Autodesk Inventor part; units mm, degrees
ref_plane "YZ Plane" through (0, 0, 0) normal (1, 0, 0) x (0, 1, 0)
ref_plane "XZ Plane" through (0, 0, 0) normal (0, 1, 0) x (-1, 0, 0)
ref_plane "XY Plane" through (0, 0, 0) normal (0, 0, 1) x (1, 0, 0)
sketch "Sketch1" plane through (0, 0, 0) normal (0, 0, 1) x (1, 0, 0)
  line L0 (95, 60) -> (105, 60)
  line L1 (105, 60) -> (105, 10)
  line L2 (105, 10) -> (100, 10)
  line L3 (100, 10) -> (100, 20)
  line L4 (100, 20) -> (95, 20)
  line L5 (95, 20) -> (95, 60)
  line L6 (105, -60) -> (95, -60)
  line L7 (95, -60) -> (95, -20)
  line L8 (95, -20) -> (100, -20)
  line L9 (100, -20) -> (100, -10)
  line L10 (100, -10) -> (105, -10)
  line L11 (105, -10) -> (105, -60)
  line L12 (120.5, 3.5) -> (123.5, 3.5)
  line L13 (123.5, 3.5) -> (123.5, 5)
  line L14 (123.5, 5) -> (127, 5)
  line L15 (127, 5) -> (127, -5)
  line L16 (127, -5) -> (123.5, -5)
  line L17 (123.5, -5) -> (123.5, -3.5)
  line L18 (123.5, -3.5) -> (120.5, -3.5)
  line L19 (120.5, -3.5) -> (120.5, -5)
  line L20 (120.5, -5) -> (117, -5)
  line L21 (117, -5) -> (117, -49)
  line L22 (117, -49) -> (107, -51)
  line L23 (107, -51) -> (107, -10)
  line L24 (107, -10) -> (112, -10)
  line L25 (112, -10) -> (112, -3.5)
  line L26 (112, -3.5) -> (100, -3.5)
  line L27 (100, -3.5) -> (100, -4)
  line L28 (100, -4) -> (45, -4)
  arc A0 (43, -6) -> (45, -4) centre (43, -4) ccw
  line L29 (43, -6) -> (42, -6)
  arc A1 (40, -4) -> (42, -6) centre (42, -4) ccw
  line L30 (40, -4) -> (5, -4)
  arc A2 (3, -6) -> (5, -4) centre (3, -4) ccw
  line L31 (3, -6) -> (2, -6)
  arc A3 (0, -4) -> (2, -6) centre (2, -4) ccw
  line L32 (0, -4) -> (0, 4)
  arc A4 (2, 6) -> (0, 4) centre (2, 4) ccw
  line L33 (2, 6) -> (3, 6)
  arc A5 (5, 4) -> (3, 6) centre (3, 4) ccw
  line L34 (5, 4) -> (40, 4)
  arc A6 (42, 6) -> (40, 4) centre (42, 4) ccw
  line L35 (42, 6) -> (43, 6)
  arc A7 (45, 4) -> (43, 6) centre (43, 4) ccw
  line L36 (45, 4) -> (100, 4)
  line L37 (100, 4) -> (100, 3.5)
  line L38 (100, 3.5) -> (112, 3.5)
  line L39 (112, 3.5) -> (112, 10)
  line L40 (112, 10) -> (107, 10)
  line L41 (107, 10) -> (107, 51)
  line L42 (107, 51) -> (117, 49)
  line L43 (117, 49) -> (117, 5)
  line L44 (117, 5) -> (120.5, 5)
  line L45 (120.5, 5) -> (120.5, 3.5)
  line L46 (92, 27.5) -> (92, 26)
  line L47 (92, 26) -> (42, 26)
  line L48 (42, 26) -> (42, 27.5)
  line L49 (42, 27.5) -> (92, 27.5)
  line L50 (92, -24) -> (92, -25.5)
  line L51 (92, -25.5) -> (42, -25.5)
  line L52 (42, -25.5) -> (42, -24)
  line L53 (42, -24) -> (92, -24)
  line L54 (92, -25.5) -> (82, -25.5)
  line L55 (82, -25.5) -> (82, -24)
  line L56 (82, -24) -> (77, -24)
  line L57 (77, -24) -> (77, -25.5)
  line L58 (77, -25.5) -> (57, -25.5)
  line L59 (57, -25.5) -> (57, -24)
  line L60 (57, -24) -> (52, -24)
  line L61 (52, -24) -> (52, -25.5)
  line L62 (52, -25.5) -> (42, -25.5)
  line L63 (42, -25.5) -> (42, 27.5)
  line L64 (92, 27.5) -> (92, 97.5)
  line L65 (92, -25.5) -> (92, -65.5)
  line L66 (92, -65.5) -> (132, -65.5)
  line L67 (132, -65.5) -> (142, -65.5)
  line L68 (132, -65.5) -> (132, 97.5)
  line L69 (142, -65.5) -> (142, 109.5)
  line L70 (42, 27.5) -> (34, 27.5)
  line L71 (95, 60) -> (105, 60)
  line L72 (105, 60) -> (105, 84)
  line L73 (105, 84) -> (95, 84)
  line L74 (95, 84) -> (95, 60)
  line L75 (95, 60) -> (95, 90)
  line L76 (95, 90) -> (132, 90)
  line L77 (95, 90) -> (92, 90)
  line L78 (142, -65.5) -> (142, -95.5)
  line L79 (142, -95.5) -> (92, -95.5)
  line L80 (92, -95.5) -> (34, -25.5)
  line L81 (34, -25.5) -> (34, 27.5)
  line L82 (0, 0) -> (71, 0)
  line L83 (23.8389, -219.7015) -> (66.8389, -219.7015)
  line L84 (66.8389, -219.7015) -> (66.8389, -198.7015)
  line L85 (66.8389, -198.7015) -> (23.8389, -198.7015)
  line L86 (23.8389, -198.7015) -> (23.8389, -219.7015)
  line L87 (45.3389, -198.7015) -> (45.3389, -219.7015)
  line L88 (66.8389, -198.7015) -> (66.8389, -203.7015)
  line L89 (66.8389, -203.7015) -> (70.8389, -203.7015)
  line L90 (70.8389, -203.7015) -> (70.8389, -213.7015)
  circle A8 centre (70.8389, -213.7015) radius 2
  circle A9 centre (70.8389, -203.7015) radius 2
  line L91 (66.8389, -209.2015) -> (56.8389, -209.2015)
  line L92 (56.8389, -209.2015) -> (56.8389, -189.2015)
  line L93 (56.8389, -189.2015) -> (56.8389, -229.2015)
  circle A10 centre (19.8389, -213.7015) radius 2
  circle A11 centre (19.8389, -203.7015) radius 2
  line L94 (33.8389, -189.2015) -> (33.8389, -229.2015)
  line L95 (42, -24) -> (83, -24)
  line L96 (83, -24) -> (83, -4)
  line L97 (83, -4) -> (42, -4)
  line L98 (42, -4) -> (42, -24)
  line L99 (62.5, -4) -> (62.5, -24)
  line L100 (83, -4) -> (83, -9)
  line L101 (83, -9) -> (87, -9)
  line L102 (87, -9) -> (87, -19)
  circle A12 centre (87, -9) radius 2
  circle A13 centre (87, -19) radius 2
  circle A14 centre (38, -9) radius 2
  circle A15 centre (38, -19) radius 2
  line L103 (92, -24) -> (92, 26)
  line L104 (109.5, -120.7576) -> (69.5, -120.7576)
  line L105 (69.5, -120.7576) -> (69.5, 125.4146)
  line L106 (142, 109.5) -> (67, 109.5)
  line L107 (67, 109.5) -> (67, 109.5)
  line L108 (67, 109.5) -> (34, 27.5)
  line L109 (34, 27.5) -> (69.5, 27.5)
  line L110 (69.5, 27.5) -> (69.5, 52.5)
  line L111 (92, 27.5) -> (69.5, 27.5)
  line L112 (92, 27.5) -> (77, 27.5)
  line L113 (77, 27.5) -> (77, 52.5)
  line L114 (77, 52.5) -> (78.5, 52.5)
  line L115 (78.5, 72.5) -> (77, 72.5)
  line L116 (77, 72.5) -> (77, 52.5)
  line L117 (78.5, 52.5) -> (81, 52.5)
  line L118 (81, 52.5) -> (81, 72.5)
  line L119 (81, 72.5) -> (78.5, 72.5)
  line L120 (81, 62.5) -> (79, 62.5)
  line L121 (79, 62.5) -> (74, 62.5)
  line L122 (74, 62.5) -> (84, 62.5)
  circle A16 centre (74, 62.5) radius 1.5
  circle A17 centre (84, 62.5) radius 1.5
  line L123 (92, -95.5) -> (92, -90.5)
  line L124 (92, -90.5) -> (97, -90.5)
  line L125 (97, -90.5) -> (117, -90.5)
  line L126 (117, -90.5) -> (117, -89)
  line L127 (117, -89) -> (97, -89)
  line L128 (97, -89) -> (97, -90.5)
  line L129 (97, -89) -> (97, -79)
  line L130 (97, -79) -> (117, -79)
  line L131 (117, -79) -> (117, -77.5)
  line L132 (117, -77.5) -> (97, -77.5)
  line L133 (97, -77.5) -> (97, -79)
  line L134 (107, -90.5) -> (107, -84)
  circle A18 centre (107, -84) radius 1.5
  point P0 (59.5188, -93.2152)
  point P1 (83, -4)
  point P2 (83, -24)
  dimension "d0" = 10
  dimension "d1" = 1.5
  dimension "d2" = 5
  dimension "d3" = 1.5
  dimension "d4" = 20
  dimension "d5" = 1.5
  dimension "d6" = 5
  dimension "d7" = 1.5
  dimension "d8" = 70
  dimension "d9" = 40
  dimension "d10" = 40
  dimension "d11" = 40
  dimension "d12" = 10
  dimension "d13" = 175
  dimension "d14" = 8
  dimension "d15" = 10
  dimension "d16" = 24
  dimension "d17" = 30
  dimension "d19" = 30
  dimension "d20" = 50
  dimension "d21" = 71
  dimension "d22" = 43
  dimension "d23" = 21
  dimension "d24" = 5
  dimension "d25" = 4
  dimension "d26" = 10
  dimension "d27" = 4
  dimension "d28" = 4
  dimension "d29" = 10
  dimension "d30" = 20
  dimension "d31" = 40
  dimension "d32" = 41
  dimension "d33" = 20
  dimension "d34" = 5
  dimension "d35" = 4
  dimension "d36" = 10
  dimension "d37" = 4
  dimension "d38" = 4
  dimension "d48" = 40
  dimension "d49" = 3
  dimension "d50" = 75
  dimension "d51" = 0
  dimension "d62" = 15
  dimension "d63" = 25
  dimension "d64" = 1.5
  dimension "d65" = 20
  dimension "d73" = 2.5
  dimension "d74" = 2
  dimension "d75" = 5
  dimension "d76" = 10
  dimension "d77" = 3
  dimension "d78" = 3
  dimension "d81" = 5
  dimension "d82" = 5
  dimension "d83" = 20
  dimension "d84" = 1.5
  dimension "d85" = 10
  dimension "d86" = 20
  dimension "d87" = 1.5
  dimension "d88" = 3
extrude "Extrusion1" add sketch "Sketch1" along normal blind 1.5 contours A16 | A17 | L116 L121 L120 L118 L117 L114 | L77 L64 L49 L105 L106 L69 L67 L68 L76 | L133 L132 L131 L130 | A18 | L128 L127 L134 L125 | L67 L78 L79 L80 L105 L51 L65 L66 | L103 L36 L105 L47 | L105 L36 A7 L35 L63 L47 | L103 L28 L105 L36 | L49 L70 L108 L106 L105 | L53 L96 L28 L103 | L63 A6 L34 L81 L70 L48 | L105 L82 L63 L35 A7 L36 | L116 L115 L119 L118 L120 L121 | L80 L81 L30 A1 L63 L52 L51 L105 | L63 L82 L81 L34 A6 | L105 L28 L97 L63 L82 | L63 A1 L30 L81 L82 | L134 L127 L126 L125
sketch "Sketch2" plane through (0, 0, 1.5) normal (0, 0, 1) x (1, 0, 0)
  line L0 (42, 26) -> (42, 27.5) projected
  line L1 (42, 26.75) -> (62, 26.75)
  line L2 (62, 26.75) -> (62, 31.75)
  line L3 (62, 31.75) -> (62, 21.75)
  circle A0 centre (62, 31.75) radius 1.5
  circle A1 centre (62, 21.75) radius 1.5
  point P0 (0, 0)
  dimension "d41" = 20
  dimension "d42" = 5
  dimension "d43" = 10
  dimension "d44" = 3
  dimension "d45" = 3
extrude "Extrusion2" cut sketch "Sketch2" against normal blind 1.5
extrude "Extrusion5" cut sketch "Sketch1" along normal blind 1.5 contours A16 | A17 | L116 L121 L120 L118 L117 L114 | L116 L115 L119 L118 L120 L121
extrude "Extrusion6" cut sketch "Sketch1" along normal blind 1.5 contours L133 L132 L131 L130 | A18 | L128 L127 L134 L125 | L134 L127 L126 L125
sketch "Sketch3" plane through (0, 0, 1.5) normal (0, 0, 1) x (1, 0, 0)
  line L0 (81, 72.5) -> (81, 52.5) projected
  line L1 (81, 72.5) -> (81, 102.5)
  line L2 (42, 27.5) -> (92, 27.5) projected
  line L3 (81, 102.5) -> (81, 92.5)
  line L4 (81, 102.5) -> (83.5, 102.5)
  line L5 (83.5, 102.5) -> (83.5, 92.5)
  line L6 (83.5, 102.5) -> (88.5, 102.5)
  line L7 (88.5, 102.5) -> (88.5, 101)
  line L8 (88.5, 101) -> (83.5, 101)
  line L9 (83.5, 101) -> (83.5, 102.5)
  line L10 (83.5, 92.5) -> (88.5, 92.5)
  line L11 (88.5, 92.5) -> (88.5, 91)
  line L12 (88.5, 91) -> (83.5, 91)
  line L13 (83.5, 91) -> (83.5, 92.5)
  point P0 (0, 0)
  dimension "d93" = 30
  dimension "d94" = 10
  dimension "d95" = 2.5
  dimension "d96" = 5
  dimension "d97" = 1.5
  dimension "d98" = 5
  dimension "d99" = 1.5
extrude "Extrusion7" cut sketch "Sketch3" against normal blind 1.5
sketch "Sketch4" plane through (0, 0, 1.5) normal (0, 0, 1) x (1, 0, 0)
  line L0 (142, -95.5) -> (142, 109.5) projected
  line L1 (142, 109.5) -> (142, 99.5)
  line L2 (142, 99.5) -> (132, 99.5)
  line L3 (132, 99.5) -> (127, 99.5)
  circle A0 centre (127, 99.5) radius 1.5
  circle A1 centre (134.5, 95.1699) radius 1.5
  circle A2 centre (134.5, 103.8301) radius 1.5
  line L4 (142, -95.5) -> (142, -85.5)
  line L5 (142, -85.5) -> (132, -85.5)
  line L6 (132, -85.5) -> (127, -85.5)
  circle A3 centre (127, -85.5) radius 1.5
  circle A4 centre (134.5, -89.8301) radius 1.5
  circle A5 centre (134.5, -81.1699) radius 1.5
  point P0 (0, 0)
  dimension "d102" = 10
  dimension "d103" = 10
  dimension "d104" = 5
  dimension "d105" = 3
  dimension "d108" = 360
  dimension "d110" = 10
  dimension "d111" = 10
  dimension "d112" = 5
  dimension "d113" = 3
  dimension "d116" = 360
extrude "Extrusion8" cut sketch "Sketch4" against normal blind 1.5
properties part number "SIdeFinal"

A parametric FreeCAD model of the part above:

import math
import FreeCAD as App
import Part
import Sketcher
Q = App.Units.Quantity


def add_polygon(sketch, points):
    """Adds a closed chain of lines whose ends are joined by coincident constraints."""
    first, n = sketch.GeometryCount, len(points)
    for a, b in zip(points, points[1:] + points[:1]):
        sketch.addGeometry(Part.LineSegment(App.Vector(*a, 0), App.Vector(*b, 0)), False)
    for i in range(n):
        sketch.addConstraint(Sketcher.Constraint("Coincident", first + i, 2, first + (i + 1) % n, 1))

doc = App.newDocument("Part")
body = doc.addObject("PartDesign::Body", "Body")

# Sketch on XY plane
sketch1 = doc.addObject("Sketcher::SketchObject", "Sketch")
body.addObject(sketch1)
sketch1.AttachmentSupport = (doc.XY_Plane, [""])
sketch1.MapMode = "FlatFace"
add_polygon(sketch1, [(142, 109.5), (67, 109.5), (34, 27.5), (34, -25.5), (92, -95.5), (142, -95.5)])  # lines 0-5
add_polygon(sketch1, [(92, 90), (132, 90), (132, -65.5), (92, -65.5), (92, -25.5), (42, -25.5), (42, -4), (83, -4), (83, -9), (83, -24), (92, -24), (92, 26), (42, 26), (42, 27.5), (77, 27.5), (92, 27.5)])  # lines 6-21
sketch1.addGeometry(Part.Circle(App.Vector(38, -9, 0), App.Vector(0, 0, 1), 2), False)  # 22
sketch1.addGeometry(Part.Circle(App.Vector(38, -19, 0), App.Vector(0, 0, 1), 2), False)  # 23
sketch1.addGeometry(Part.Circle(App.Vector(87, -19, 0), App.Vector(0, 0, 1), 2), False)  # 24
sketch1.addGeometry(Part.ArcOfCircle(Part.Circle(App.Vector(87, -9, 0), App.Vector(0, 0, 1), 2), math.radians(180), math.radians(270)), False)  # 25
sketch1.addGeometry(Part.ArcOfCircle(Part.Circle(App.Vector(87, -9, 0), App.Vector(0, 0, 1), 2), math.radians(-90), math.radians(180)), False)  # 26
sketch1.addConstraint(Sketcher.Constraint("Tangent", 25, 1, 26, 2))
sketch1.addConstraint(Sketcher.Constraint("Coincident", 26, 1, 25, 2))
sketch1.addConstraint(Sketcher.Constraint("Horizontal", 0))
sketch1.addConstraint(Sketcher.Constraint("Vertical", 2))
sketch1.addConstraint(Sketcher.Constraint("Horizontal", 4))
sketch1.addConstraint(Sketcher.Constraint("Vertical", 5))
sketch1.addConstraint(Sketcher.Constraint("Horizontal", 6))
sketch1.addConstraint(Sketcher.Constraint("Vertical", 7))
sketch1.addConstraint(Sketcher.Constraint("Horizontal", 8))
sketch1.addConstraint(Sketcher.Constraint("Vertical", 9))
sketch1.addConstraint(Sketcher.Constraint("Horizontal", 10))
sketch1.addConstraint(Sketcher.Constraint("Vertical", 11))
sketch1.addConstraint(Sketcher.Constraint("Horizontal", 12))
sketch1.addConstraint(Sketcher.Constraint("Vertical", 13))
sketch1.addConstraint(Sketcher.Constraint("Vertical", 14))
sketch1.addConstraint(Sketcher.Constraint("Horizontal", 15))
sketch1.addConstraint(Sketcher.Constraint("Vertical", 16))
sketch1.addConstraint(Sketcher.Constraint("Horizontal", 17))
sketch1.addConstraint(Sketcher.Constraint("Vertical", 18))
sketch1.addConstraint(Sketcher.Constraint("Horizontal", 19))
sketch1.addConstraint(Sketcher.Constraint("Horizontal", 20))
sketch1.addConstraint(Sketcher.Constraint("Vertical", 21))
sketch1.addConstraint(Sketcher.Constraint("Equal", 22, 23))
sketch1.addConstraint(Sketcher.Constraint("Equal", 23, 24))
sketch1.addConstraint(Sketcher.Constraint("Equal", 24, 25))
sketch1.addConstraint(Sketcher.Constraint("Horizontal", 23, 3, 24, 3))
sketch1.addConstraint(Sketcher.Constraint("Horizontal", 22, 3, 25, 3))
sketch1.addConstraint(Sketcher.Constraint("Horizontal", 2, 2, 9, 2))
sketch1.addConstraint(Sketcher.Constraint("Horizontal", 26, 3, 13, 2))
sketch1.addConstraint(Sketcher.Constraint("Horizontal", 1, 2, 18, 2))
sketch1.addConstraint(Sketcher.Constraint("Horizontal", 13, 2, 25, 1))
sketch1.addConstraint(Sketcher.Constraint("Vertical", 22, 3, 23, 3))
sketch1.addConstraint(Sketcher.Constraint("Vertical", 24, 3, 25, 3))
sketch1.addConstraint(Sketcher.Constraint("Vertical", 3, 2, 8, 2))
sketch1.addConstraint(Sketcher.Constraint("Vertical", 9, 2, 15, 2))
sketch1.addConstraint(Sketcher.Constraint("Vertical", 11, 2, 17, 2))
sketch1.addConstraint(Sketcher.Constraint("Vertical", 16, 2, 20, 2))
sketch1.addConstraint(Sketcher.Constraint("Vertical", 25, 3, 26, 1))
sketch1.addConstraint(Sketcher.Constraint("Equal", 4, 10))
sketch1.addConstraint(Sketcher.Constraint("Equal", 8, 9))
sketch1.addConstraint(Sketcher.Constraint("Equal", 20, 14))
sketch1.addConstraint(Sketcher.Constraint("Equal", 17, 16))
sketch1.addConstraint(Sketcher.Constraint("Diameter", 22, Q("4 mm")))
sketch1.addConstraint(Sketcher.Constraint("DistanceX", 0, 2, 0, 1, Q("75 mm")))
sketch1.addConstraint(Sketcher.Constraint("DistanceX", 4, 1, 4, 2, Q("50 mm")))
sketch1.addConstraint(Sketcher.Constraint("DistanceX", 6, 1, 6, 2, Q("40 mm")))
sketch1.addConstraint(Sketcher.Constraint("DistanceX", 12, 1, 12, 2, Q("41 mm")))
sketch1.addConstraint(Sketcher.Constraint("DistanceX", 20, 1, 20, 2, Q("15 mm")))
sketch1.addConstraint(Sketcher.Constraint("DistanceY", 13, 2, 13, 1, Q("5 mm")))
sketch1.addConstraint(Sketcher.Constraint("DistanceY", 18, 1, 18, 2, Q("1.5 mm")))
sketch1.addConstraint(Sketcher.Constraint("DistanceY", 11, 2, -1, 1, Q("4 mm")))
sketch1.addConstraint(Sketcher.Constraint("DistanceY", 23, 3, 22, 3, Q("10 mm")))
sketch1.addConstraint(Sketcher.Constraint("DistanceX", 0, 2, 25, 3, Q("20 mm")))
sketch1.addConstraint(Sketcher.Constraint("DistanceX", 1, 2, 22, 3, Q("4 mm")))
sketch1.addConstraint(Sketcher.Constraint("DistanceY", 3, 2, 2, 2, Q("70 mm")))
sketch1.addConstraint(Sketcher.Constraint("DistanceX", 23, 3, 10, 2, Q("4 mm")))
sketch1.addConstraint(Sketcher.Constraint("DistanceY", 9, 2, 14, 2, Q("1.5 mm")))
sketch1.addConstraint(Sketcher.Constraint("DistanceY", 5, 1, 5, 2, Q("205 mm")))
sketch1.addConstraint(Sketcher.Constraint("DistanceY", 7, 2, 7, 1, Q("155.5 mm")))
sketch1.addConstraint(Sketcher.Constraint("DistanceX", -1, 1, 22, 3, Q("38 mm")))
pad1 = doc.addObject("PartDesign::Pad", "Pad")
body.addObject(pad1)
pad1.Profile = sketch1
pad1.Length = 1.5

# Sketch on XY plane
sketch2 = doc.addObject("Sketcher::SketchObject", "Sketch001")
body.addObject(sketch2)
sketch2.AttachmentSupport = (doc.XY_Plane, [""])
sketch2.MapMode = "FlatFace"
sketch2.AttachmentOffset = App.Placement(App.Vector(0, 0, 1.5), App.Rotation())
sketch2.addGeometry(Part.Circle(App.Vector(62, 31.8, 0), App.Vector(0, 0, 1), 1.5), False)
sketch2.addGeometry(Part.Circle(App.Vector(62, 21.8, 0), App.Vector(0, 0, 1), 1.5), False)
sketch2.addConstraint(Sketcher.Constraint("Equal", 0, 1))
sketch2.addConstraint(Sketcher.Constraint("Vertical", 0, 3, 1, 3))
sketch2.addConstraint(Sketcher.Constraint("Diameter", 0, Q("3 mm")))
sketch2.addConstraint(Sketcher.Constraint("DistanceY", 1, 3, 0, 3, Q("10 mm")))
sketch2.addConstraint(Sketcher.Constraint("DistanceX", -1, 1, 0, 3, Q("62 mm")))
sketch2.addConstraint(Sketcher.Constraint("DistanceY", -1, 1, 0, 3, Q("31.75 mm")))
pocket1 = doc.addObject("PartDesign::Pocket", "Pocket")
body.addObject(pocket1)
pocket1.Profile = sketch2
pocket1.Length = 1.5

# Sketch on XY plane
sketch3 = doc.addObject("Sketcher::SketchObject", "Sketch002")
body.addObject(sketch3)
sketch3.AttachmentSupport = (doc.XY_Plane, [""])
sketch3.MapMode = "FlatFace"
sketch3.addGeometry(Part.Circle(App.Vector(74, 62.5, 0), App.Vector(0, 0, 1), 1.5), False)  # 0
sketch3.addGeometry(Part.Circle(App.Vector(84, 62.5, 0), App.Vector(0, 0, 1), 1.5), False)  # 1
add_polygon(sketch3, [(77, 52.5), (81, 52.5), (81, 72.5), (77, 72.5)])  # lines 2-5
sketch3.addConstraint(Sketcher.Constraint("Horizontal", 2))
sketch3.addConstraint(Sketcher.Constraint("Vertical", 3))
sketch3.addConstraint(Sketcher.Constraint("Horizontal", 4))
sketch3.addConstraint(Sketcher.Constraint("Vertical", 5))
sketch3.addConstraint(Sketcher.Constraint("Equal", 0, 1))
sketch3.addConstraint(Sketcher.Constraint("Horizontal", 0, 3, 1, 3))
sketch3.addConstraint(Sketcher.Constraint("Diameter", 0, Q("3 mm")))
sketch3.addConstraint(Sketcher.Constraint("DistanceX", 2, 1, 2, 2, Q("4 mm")))
sketch3.addConstraint(Sketcher.Constraint("DistanceY", 3, 1, 3, 2, Q("20 mm")))
sketch3.addConstraint(Sketcher.Constraint("DistanceX", 0, 3, 1, 3, Q("10 mm")))
sketch3.addConstraint(Sketcher.Constraint("DistanceX", 2, 2, 1, 3, Q("3 mm")))
sketch3.addConstraint(Sketcher.Constraint("DistanceY", 2, 2, 1, 3, Q("10 mm")))
sketch3.addConstraint(Sketcher.Constraint("DistanceX", -1, 1, 0, 3, Q("74 mm")))
sketch3.addConstraint(Sketcher.Constraint("DistanceY", -1, 1, 0, 3, Q("62.5 mm")))
pocket2 = doc.addObject("PartDesign::Pocket", "Pocket001")
body.addObject(pocket2)
pocket2.Profile = sketch3
pocket2.Length = 1.5
pocket2.Reversed = True

# Sketch on XY plane
sketch4 = doc.addObject("Sketcher::SketchObject", "Sketch003")
body.addObject(sketch4)
sketch4.AttachmentSupport = (doc.XY_Plane, [""])
sketch4.MapMode = "FlatFace"
add_polygon(sketch4, [(97, -77.5), (97, -79), (117, -79), (117, -77.5)])  # lines 0-3
sketch4.addGeometry(Part.Circle(App.Vector(107, -84, 0), App.Vector(0, 0, 1), 1.5), False)  # 4
add_polygon(sketch4, [(97, -89), (97, -90.5), (117, -90.5), (117, -89)])  # lines 5-8
sketch4.addConstraint(Sketcher.Constraint("Vertical", 0))
sketch4.addConstraint(Sketcher.Constraint("Horizontal", 1))
sketch4.addConstraint(Sketcher.Constraint("Vertical", 2))
sketch4.addConstraint(Sketcher.Constraint("Horizontal", 3))
sketch4.addConstraint(Sketcher.Constraint("Vertical", 5))
sketch4.addConstraint(Sketcher.Constraint("Horizontal", 6))
sketch4.addConstraint(Sketcher.Constraint("Vertical", 7))
sketch4.addConstraint(Sketcher.Constraint("Horizontal", 8))
sketch4.addConstraint(Sketcher.Constraint("Vertical", 3, 2, 5, 2))
sketch4.addConstraint(Sketcher.Constraint("Vertical", 2, 2, 6, 2))
sketch4.addConstraint(Sketcher.Constraint("Equal", 2, 5))
sketch4.addConstraint(Sketcher.Constraint("Diameter", 4, Q("3 mm")))
sketch4.addConstraint(Sketcher.Constraint("DistanceX", 1, 1, 1, 2, Q("20 mm")))
sketch4.addConstraint(Sketcher.Constraint("DistanceY", 0, 2, 0, 1, Q("1.5 mm")))
sketch4.addConstraint(Sketcher.Constraint("DistanceX", 0, 2, 4, 3, Q("10 mm")))
sketch4.addConstraint(Sketcher.Constraint("DistanceY", 4, 3, 0, 2, Q("5 mm")))
sketch4.addConstraint(Sketcher.Constraint("DistanceY", 7, 2, 1, 2, Q("10 mm")))
sketch4.addConstraint(Sketcher.Constraint("DistanceX", -1, 1, 4, 3, Q("107 mm")))
sketch4.addConstraint(Sketcher.Constraint("DistanceY", 4, 3, -1, 1, Q("84 mm")))
pocket3 = doc.addObject("PartDesign::Pocket", "Pocket002")
body.addObject(pocket3)
pocket3.Profile = sketch4
pocket3.Length = 1.5
pocket3.Reversed = True

# Sketch on XY plane
sketch5 = doc.addObject("Sketcher::SketchObject", "Sketch004")
body.addObject(sketch5)
sketch5.AttachmentSupport = (doc.XY_Plane, [""])
sketch5.MapMode = "FlatFace"
sketch5.AttachmentOffset = App.Placement(App.Vector(0, 0, 1.5), App.Rotation())
add_polygon(sketch5, [(88.5, 102.5), (83.5, 102.5), (83.5, 101), (88.5, 101)])  # lines 0-3
add_polygon(sketch5, [(88.5, 92.5), (83.5, 92.5), (83.5, 91), (88.5, 91)])  # lines 4-7
sketch5.addConstraint(Sketcher.Constraint("Horizontal", 0))
sketch5.addConstraint(Sketcher.Constraint("Vertical", 1))
sketch5.addConstraint(Sketcher.Constraint("Horizontal", 2))
sketch5.addConstraint(Sketcher.Constraint("Vertical", 3))
sketch5.addConstraint(Sketcher.Constraint("Horizontal", 4))
sketch5.addConstraint(Sketcher.Constraint("Vertical", 5))
sketch5.addConstraint(Sketcher.Constraint("Horizontal", 6))
sketch5.addConstraint(Sketcher.Constraint("Vertical", 7))
sketch5.addConstraint(Sketcher.Constraint("Vertical", 1, 2, 4, 2))
sketch5.addConstraint(Sketcher.Constraint("Vertical", 3, 2, 6, 2))
sketch5.addConstraint(Sketcher.Constraint("Equal", 3, 5))
sketch5.addConstraint(Sketcher.Constraint("DistanceX", 0, 2, 0, 1, Q("5 mm")))
sketch5.addConstraint(Sketcher.Constraint("DistanceY", 1, 2, 1, 1, Q("1.5 mm")))
sketch5.addConstraint(Sketcher.Constraint("DistanceY", 4, 2, 0, 2, Q("10 mm")))
sketch5.addConstraint(Sketcher.Constraint("DistanceY", -1, 1, 1, 2, Q("101 mm")))
sketch5.addConstraint(Sketcher.Constraint("DistanceX", -1, 1, 0, 2, Q("83.5 mm")))
pocket4 = doc.addObject("PartDesign::Pocket", "Pocket003")
body.addObject(pocket4)
pocket4.Profile = sketch5
pocket4.Length = 1.5

# Sketch on XY plane
sketch6 = doc.addObject("Sketcher::SketchObject", "Sketch005")
body.addObject(sketch6)
sketch6.AttachmentSupport = (doc.XY_Plane, [""])
sketch6.MapMode = "FlatFace"
sketch6.AttachmentOffset = App.Placement(App.Vector(0, 0, 1.5), App.Rotation())
sketch6.addGeometry(Part.Circle(App.Vector(127, 99.5, 0), App.Vector(0, 0, 1), 1.5), False)
sketch6.addGeometry(Part.Circle(App.Vector(127, -85.5, 0), App.Vector(0, 0, 1), 1.5), False)
sketch6.addGeometry(Part.Circle(App.Vector(134.5, 95.2, 0), App.Vector(0, 0, 1), 1.5), False)
sketch6.addGeometry(Part.Circle(App.Vector(134.5, 103.8, 0), App.Vector(0, 0, 1), 1.5), False)
sketch6.addGeometry(Part.Circle(App.Vector(134.5, -89.8, 0), App.Vector(0, 0, 1), 1.5), False)
sketch6.addGeometry(Part.Circle(App.Vector(134.5, -81.2, 0), App.Vector(0, 0, 1), 1.5), False)
sketch6.addConstraint(Sketcher.Constraint("Equal", 0, 1))
sketch6.addConstraint(Sketcher.Constraint("Equal", 1, 2))
sketch6.addConstraint(Sketcher.Constraint("Equal", 2, 3))
sketch6.addConstraint(Sketcher.Constraint("Equal", 3, 4))
sketch6.addConstraint(Sketcher.Constraint("Equal", 4, 5))
sketch6.addConstraint(Sketcher.Constraint("Vertical", 0, 3, 1, 3))
sketch6.addConstraint(Sketcher.Constraint("Vertical", 2, 3, 3, 3))
sketch6.addConstraint(Sketcher.Constraint("Vertical", 3, 3, 4, 3))
sketch6.addConstraint(Sketcher.Constraint("Vertical", 4, 3, 5, 3))
sketch6.addConstraint(Sketcher.Constraint("Diameter", 0, Q("3 mm")))
sketch6.addConstraint(Sketcher.Constraint("DistanceX", -1, 1, 0, 3, Q("127 mm")))
sketch6.addConstraint(Sketcher.Constraint("DistanceY", 1, 3, 0, 3, Q("185 mm")))
sketch6.addConstraint(Sketcher.Constraint("DistanceY", 4, 3, 2, 3, Q("185 mm")))
sketch6.addConstraint(Sketcher.Constraint("DistanceY", 5, 3, 3, 3, Q("185 mm")))
sketch6.addConstraint(Sketcher.Constraint("DistanceY", -1, 1, 0, 3, Q("99.5 mm")))
sketch6.addConstraint(Sketcher.Constraint("DistanceX", -1, 1, 2, 3, Q("134.5 mm")))
sketch6.addConstraint(Sketcher.Constraint("DistanceY", -1, 1, 2, 3, Q("95.17 mm")))
sketch6.addConstraint(Sketcher.Constraint("DistanceY", -1, 1, 3, 3, Q("103.83 mm")))
pocket5 = doc.addObject("PartDesign::Pocket", "Pocket004")
body.addObject(pocket5)
pocket5.Profile = sketch6
pocket5.Length = 1.5

doc.recompute()
